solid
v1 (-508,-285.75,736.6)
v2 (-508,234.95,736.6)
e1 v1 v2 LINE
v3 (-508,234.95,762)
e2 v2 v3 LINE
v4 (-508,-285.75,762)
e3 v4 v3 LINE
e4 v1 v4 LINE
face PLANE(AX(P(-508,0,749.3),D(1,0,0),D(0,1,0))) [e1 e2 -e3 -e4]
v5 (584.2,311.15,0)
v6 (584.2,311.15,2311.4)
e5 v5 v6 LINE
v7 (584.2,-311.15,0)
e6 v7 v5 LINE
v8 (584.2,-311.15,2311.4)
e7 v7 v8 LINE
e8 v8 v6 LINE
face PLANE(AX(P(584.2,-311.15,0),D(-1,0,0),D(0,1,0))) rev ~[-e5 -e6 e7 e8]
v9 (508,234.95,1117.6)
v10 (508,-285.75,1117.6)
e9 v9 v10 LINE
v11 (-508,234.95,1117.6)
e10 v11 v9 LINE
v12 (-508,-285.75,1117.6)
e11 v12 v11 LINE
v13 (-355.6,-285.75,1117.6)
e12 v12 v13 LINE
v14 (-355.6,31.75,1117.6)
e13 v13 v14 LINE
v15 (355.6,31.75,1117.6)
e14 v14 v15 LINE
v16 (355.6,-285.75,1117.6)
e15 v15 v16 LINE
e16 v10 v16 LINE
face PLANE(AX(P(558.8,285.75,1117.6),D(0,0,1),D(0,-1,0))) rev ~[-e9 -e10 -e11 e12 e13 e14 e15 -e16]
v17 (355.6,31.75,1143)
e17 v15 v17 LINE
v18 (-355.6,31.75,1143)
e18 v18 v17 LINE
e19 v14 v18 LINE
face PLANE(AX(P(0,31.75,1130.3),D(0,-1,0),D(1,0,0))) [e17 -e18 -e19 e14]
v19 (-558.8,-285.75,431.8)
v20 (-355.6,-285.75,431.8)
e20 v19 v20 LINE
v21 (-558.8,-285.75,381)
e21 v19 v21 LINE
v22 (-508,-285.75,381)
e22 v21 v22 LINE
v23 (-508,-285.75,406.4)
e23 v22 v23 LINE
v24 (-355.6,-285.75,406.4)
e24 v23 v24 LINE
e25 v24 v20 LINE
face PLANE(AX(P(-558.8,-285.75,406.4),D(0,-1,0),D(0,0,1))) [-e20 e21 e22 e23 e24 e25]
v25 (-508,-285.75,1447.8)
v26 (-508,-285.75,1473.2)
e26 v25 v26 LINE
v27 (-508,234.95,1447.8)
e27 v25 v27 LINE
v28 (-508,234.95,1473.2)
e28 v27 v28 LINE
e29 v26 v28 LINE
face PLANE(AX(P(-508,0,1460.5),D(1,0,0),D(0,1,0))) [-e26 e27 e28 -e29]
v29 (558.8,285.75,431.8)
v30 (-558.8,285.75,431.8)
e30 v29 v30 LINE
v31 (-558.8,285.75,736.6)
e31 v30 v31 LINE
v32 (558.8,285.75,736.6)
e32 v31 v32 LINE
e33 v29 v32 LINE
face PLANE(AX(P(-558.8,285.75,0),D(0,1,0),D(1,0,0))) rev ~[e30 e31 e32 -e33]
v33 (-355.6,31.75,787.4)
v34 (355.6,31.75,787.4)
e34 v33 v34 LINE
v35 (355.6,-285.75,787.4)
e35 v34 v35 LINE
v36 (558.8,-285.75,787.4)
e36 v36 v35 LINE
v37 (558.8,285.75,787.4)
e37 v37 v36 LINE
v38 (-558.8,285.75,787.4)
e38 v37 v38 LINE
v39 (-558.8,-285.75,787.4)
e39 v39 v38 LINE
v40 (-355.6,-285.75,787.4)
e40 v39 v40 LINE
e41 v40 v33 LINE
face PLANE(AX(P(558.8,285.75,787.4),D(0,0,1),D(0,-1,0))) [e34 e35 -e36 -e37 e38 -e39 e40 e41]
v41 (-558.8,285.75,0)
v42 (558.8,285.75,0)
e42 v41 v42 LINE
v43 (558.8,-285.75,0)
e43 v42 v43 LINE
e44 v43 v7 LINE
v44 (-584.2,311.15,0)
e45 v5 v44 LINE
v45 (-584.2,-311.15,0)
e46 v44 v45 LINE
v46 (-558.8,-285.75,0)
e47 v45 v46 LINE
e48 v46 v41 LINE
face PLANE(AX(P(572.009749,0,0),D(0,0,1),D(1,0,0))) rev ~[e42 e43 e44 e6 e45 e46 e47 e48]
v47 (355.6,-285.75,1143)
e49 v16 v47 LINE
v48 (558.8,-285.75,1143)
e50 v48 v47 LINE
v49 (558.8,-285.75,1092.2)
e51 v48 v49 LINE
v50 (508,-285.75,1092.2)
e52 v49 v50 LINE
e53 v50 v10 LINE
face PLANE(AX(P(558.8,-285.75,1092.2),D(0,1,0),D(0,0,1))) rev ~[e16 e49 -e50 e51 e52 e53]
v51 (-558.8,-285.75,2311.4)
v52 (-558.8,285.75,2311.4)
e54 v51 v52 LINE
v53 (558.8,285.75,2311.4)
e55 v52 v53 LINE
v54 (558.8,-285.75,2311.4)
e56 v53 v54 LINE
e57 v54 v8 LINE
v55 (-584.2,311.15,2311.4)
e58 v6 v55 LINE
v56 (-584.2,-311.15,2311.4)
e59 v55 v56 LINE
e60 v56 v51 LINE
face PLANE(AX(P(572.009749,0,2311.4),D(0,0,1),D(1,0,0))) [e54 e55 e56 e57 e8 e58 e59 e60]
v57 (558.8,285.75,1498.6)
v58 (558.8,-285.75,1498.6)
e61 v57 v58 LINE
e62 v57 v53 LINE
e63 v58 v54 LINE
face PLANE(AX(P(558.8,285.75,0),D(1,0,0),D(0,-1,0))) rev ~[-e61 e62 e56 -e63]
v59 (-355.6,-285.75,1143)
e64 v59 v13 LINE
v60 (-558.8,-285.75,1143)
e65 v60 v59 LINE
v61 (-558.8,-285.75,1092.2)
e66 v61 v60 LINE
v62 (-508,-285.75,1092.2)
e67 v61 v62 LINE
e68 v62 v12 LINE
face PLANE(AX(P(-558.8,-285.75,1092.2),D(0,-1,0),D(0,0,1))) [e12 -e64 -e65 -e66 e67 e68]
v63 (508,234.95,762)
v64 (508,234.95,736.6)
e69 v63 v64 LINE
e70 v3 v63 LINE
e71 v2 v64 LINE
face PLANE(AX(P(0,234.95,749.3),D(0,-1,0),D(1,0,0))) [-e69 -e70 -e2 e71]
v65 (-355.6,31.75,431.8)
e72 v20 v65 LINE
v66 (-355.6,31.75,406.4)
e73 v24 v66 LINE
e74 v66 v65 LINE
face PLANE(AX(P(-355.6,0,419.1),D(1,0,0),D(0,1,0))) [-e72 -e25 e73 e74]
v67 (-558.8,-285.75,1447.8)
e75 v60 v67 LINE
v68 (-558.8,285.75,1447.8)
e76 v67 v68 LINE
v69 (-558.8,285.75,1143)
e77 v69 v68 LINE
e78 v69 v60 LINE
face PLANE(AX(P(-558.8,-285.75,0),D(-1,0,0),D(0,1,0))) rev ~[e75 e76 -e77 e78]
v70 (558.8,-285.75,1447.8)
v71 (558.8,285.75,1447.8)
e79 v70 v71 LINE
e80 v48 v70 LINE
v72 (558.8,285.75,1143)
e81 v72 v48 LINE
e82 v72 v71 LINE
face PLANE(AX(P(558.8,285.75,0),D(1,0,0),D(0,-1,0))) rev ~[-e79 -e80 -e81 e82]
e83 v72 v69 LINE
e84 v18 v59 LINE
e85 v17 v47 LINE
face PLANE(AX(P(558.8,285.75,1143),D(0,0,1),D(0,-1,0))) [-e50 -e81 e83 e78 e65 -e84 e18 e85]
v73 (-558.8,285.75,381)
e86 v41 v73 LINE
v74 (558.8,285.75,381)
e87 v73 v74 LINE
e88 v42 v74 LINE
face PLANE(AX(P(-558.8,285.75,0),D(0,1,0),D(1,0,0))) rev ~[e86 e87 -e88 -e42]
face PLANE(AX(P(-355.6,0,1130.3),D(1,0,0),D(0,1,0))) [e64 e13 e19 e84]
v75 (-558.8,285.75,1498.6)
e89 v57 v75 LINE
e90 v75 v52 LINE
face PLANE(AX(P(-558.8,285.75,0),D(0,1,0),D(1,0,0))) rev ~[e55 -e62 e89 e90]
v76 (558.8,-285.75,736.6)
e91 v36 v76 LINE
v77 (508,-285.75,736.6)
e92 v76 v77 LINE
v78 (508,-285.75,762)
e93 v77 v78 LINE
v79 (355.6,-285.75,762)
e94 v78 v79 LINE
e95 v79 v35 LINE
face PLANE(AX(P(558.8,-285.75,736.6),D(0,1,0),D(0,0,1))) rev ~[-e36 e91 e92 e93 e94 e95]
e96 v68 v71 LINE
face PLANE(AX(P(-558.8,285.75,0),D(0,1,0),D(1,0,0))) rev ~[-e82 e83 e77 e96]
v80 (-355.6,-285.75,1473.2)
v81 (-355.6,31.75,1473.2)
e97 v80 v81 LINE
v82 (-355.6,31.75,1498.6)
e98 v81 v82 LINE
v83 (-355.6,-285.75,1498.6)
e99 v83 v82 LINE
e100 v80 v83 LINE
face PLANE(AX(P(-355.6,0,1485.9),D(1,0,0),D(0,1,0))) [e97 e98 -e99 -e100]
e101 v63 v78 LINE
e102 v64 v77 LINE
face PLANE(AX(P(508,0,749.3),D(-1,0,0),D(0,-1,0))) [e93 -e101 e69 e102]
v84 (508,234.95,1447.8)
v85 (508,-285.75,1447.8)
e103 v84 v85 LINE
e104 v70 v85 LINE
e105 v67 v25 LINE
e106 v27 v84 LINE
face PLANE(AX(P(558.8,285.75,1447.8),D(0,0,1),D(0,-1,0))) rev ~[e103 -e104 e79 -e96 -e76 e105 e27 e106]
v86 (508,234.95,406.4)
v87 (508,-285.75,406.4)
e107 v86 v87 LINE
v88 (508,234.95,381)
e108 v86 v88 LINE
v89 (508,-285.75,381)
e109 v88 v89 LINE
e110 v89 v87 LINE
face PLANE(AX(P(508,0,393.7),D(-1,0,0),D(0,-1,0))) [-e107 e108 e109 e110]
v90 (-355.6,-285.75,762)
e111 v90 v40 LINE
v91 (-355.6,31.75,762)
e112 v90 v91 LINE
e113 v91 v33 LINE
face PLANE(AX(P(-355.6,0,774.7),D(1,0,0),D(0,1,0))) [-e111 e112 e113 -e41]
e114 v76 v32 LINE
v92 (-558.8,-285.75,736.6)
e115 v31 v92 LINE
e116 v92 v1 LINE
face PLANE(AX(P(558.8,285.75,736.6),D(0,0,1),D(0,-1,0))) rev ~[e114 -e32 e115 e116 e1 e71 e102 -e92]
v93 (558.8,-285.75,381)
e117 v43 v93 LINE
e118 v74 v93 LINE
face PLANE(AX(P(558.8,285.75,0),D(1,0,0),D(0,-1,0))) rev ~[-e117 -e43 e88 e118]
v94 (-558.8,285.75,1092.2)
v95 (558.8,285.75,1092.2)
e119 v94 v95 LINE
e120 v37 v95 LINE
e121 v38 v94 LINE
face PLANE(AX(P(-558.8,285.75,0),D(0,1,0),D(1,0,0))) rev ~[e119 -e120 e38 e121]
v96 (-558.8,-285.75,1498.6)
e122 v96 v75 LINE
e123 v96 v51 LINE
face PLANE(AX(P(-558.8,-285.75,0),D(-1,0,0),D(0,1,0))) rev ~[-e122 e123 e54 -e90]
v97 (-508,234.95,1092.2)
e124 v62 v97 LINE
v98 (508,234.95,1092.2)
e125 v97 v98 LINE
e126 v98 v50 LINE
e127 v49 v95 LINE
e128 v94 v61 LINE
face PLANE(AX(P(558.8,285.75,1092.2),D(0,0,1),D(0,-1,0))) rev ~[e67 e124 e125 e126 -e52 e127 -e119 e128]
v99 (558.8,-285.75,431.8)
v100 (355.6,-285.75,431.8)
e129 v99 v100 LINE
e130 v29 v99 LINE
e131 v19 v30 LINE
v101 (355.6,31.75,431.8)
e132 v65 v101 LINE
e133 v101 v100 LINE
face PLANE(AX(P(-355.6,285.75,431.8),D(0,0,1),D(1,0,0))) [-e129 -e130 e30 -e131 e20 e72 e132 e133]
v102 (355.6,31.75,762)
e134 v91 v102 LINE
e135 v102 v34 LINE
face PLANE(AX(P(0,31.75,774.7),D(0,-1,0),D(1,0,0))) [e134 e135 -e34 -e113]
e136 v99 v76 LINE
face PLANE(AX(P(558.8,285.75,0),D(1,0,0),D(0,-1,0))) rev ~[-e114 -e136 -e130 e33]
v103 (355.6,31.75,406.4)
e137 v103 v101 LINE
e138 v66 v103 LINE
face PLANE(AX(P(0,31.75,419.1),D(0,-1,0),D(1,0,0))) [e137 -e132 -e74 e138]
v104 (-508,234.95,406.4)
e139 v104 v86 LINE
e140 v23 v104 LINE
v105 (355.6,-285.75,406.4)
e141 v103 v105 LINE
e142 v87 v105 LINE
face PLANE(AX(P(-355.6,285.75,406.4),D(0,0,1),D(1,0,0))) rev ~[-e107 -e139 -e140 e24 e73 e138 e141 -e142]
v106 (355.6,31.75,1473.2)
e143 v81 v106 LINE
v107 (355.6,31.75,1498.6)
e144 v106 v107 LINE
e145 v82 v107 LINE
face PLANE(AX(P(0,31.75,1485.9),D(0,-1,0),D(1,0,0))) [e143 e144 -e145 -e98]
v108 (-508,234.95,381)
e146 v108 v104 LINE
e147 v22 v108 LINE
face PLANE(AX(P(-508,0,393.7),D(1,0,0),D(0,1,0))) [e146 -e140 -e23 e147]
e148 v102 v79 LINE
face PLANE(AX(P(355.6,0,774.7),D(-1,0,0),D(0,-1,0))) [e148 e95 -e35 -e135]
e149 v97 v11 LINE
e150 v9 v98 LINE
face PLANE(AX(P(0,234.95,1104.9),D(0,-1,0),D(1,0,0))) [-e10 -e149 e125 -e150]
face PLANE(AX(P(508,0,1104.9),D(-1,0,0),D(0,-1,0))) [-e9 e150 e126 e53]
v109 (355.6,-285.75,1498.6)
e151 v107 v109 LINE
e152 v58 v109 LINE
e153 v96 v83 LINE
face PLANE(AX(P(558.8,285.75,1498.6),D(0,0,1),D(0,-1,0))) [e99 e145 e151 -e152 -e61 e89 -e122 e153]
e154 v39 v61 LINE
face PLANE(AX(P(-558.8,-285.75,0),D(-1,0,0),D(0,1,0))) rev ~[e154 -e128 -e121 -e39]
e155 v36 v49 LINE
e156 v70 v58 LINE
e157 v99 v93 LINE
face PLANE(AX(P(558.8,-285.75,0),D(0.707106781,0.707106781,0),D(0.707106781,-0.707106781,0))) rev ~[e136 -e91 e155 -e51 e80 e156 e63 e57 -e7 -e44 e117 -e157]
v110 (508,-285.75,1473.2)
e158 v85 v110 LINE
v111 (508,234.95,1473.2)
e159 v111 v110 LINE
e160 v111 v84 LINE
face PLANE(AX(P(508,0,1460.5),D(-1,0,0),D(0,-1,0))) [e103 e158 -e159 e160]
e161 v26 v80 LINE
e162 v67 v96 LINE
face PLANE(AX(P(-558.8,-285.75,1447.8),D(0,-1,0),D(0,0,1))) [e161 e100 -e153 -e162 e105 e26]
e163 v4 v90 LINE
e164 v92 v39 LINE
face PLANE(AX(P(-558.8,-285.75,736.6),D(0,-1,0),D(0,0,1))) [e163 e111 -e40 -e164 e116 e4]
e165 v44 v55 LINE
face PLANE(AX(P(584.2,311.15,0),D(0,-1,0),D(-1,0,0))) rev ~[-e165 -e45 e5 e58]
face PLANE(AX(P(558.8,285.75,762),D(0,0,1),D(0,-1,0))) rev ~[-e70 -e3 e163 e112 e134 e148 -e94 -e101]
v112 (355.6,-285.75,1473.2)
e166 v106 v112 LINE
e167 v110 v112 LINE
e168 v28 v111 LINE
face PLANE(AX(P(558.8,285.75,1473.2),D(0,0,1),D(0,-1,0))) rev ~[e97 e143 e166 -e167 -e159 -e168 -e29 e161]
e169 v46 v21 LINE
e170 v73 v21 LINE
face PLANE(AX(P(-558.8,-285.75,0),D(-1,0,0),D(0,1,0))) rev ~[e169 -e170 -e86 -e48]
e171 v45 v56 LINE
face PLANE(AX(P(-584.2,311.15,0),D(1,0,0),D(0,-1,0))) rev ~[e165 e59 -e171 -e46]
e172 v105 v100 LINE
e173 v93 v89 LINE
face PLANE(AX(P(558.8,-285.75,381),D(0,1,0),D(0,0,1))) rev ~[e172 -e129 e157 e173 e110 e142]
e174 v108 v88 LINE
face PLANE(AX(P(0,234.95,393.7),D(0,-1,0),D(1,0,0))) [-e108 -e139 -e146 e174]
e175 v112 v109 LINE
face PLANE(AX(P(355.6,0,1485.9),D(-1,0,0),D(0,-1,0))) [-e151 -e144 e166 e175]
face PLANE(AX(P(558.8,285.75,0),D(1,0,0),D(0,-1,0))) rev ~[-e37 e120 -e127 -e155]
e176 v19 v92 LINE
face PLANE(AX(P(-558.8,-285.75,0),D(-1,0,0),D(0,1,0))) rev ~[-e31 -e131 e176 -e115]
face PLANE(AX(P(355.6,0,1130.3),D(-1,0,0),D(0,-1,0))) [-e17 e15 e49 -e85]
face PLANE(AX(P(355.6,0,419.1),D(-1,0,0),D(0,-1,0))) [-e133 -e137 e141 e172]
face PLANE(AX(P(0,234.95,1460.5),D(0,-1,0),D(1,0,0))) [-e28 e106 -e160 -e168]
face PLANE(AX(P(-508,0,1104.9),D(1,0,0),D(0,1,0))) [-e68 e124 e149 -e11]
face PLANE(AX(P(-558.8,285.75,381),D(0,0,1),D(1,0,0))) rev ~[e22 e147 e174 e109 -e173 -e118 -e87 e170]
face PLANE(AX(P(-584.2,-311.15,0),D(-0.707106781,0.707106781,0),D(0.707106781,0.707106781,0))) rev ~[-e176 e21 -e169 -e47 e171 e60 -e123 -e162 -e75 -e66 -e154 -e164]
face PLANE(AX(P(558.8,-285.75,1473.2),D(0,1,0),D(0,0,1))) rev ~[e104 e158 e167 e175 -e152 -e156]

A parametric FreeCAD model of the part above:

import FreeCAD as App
import Part
import Sketcher

V = App.Vector
Q = App.Units.Quantity

doc = App.newDocument("Part")
params = doc.addObject("Spreadsheet::Sheet", "Params")
for row, (alias, value) in enumerate([
    ("sketch1_width", "44 in"),
    ("sketch1_width2", "46 in"),
    ("pad1_length", "91 in"),
    ("sketch2_height", "22.5 in"),
    ("sketch2_height2", "24.5 in"),
    ("pad2_length", "91 in"),
    ("sketch3_height", "22.5 in"),
    ("sketch3_height2", "24.5 in"),
    ("pad3_length", "91 in"),
    ("sketch4_width", "44 in"),
    ("sketch4_height", "1 in"),
    ("pad4_length", "2 in"),
    ("sketch5_height", "1 in"),
    ("sketch5_width", "22.5 in"),
    ("pad5_length", "2 in"),
    ("sketch6_height", "1 in"),
    ("sketch6_width", "22.5 in"),
    ("pad6_length", "2 in"),
    ("sketch7_height", "1 in"),
    ("sketch7_width", "22.5 in"),
    ("pad7_length", "8 in"),
    ("sketch8_height", "1 in"),
    ("sketch8_width", "22.5 in"),
    ("pad8_length", "8 in"),
    ("sketch9_width", "28 in"),
    ("sketch9_height", "1 in"),
    ("pad9_length", "10 in"),
], start=1):
    params.set(f"A{row}", alias)
    params.set(f"B{row}", "=" + value)
    params.setAlias(f"B{row}", alias)

body = doc.addObject("PartDesign::Body", "Body")

# Sketch on XY plane
sketch1 = doc.addObject("Sketcher::SketchObject", "Sketch")
body.addObject(sketch1)
sketch1.AttachmentSupport = (doc.XY_Plane, [""])
sketch1.MapMode = "FlatFace"
sketch1.addGeometry(Part.LineSegment(V(-559, 286, 0), V(559, 286, 0)), False)
sketch1.addGeometry(Part.LineSegment(V(559, 286, 0), V(584, 311, 0)), False)
sketch1.addGeometry(Part.LineSegment(V(584, 311, 0), V(-584, 311, 0)), False)
sketch1.addGeometry(Part.LineSegment(V(-584, 311, 0), V(-559, 286, 0)), False)
sketch1.addConstraint(Sketcher.Constraint("Coincident", 0, 2, 1, 1))
sketch1.addConstraint(Sketcher.Constraint("Coincident", 1, 2, 2, 1))
sketch1.addConstraint(Sketcher.Constraint("Coincident", 2, 2, 3, 1))
sketch1.addConstraint(Sketcher.Constraint("Coincident", 3, 2, 0, 1))
sketch1.addConstraint(Sketcher.Constraint("Horizontal", 0))
sketch1.addConstraint(Sketcher.Constraint("Horizontal", 2))
sketch1.addConstraint(Sketcher.Constraint("Perpendicular", 1, 3))
sketch1.addConstraint(Sketcher.Constraint("Equal", 1, 3))
sketch1.addConstraint(Sketcher.Constraint("DistanceX", 0, 1, 0, 2, Q("44 in")))
sketch1.addConstraint(Sketcher.Constraint("DistanceX", 2, 2, 2, 1, Q("46 in")))
sketch1.addConstraint(Sketcher.Constraint("DistanceX", -1, 1, 0, 2, Q("22 in")))
sketch1.addConstraint(Sketcher.Constraint("DistanceY", -1, 1, 0, 2, Q("11.25 in")))
sketch1.setExpression("Constraints[8]", "Params.sketch1_width")
sketch1.setExpression("Constraints[9]", "Params.sketch1_width2")
pad1 = doc.addObject("PartDesign::Pad", "Pad")
body.addObject(pad1)
pad1.Profile = sketch1
pad1.setExpression("Length", "Params.pad1_length")

# Sketch on XY plane
sketch2 = doc.addObject("Sketcher::SketchObject", "Sketch001")
body.addObject(sketch2)
sketch2.AttachmentSupport = (doc.XY_Plane, [""])
sketch2.MapMode = "FlatFace"
sketch2.addGeometry(Part.LineSegment(V(-559, -286, 0), V(-559, 286, 0)), False)
sketch2.addGeometry(Part.LineSegment(V(-559, 286, 0), V(-584, 311, 0)), False)
sketch2.addGeometry(Part.LineSegment(V(-584, 311, 0), V(-584, -311, 0)), False)
sketch2.addGeometry(Part.LineSegment(V(-584, -311, 0), V(-559, -286, 0)), False)
sketch2.addConstraint(Sketcher.Constraint("Coincident", 0, 2, 1, 1))
sketch2.addConstraint(Sketcher.Constraint("Coincident", 1, 2, 2, 1))
sketch2.addConstraint(Sketcher.Constraint("Coincident", 2, 2, 3, 1))
sketch2.addConstraint(Sketcher.Constraint("Coincident", 3, 2, 0, 1))
sketch2.addConstraint(Sketcher.Constraint("Vertical", 0))
sketch2.addConstraint(Sketcher.Constraint("Vertical", 2))
sketch2.addConstraint(Sketcher.Constraint("Perpendicular", 1, 3))
sketch2.addConstraint(Sketcher.Constraint("Equal", 1, 3))
sketch2.addConstraint(Sketcher.Constraint("DistanceY", 0, 1, 0, 2, Q("22.5 in")))
sketch2.addConstraint(Sketcher.Constraint("DistanceY", 2, 2, 2, 1, Q("24.5 in")))
sketch2.addConstraint(Sketcher.Constraint("DistanceX", 0, 2, -1, 1, Q("22 in")))
sketch2.addConstraint(Sketcher.Constraint("DistanceY", -1, 1, 0, 2, Q("11.25 in")))
sketch2.setExpression("Constraints[8]", "Params.sketch2_height")
sketch2.setExpression("Constraints[9]", "Params.sketch2_height2")
pad2 = doc.addObject("PartDesign::Pad", "Pad001")
body.addObject(pad2)
pad2.Profile = sketch2
pad2.setExpression("Length", "Params.pad2_length")

# Sketch on XY plane
sketch3 = doc.addObject("Sketcher::SketchObject", "Sketch002")
body.addObject(sketch3)
sketch3.AttachmentSupport = (doc.XY_Plane, [""])
sketch3.MapMode = "FlatFace"
sketch3.addGeometry(Part.LineSegment(V(559, 286, 0), V(559, -286, 0)), False)
sketch3.addGeometry(Part.LineSegment(V(559, -286, 0), V(584, -311, 0)), False)
sketch3.addGeometry(Part.LineSegment(V(584, -311, 0), V(584, 311, 0)), False)
sketch3.addGeometry(Part.LineSegment(V(584, 311, 0), V(559, 286, 0)), False)
sketch3.addConstraint(Sketcher.Constraint("Coincident", 0, 2, 1, 1))
sketch3.addConstraint(Sketcher.Constraint("Coincident", 1, 2, 2, 1))
sketch3.addConstraint(Sketcher.Constraint("Coincident", 2, 2, 3, 1))
sketch3.addConstraint(Sketcher.Constraint("Coincident", 3, 2, 0, 1))
sketch3.addConstraint(Sketcher.Constraint("Vertical", 0))
sketch3.addConstraint(Sketcher.Constraint("Vertical", 2))
sketch3.addConstraint(Sketcher.Constraint("Perpendicular", 1, 3))
sketch3.addConstraint(Sketcher.Constraint("Equal", 1, 3))
sketch3.addConstraint(Sketcher.Constraint("DistanceY", 0, 2, 0, 1, Q("22.5 in")))
sketch3.addConstraint(Sketcher.Constraint("DistanceY", 2, 1, 2, 2, Q("24.5 in")))
sketch3.addConstraint(Sketcher.Constraint("DistanceX", -1, 1, 0, 2, Q("22 in")))
sketch3.addConstraint(Sketcher.Constraint("DistanceY", 0, 2, -1, 1, Q("11.25 in")))
sketch3.setExpression("Constraints[8]", "Params.sketch3_height")
sketch3.setExpression("Constraints[9]", "Params.sketch3_height2")
pad3 = doc.addObject("PartDesign::Pad", "Pad002")
body.addObject(pad3)
pad3.Profile = sketch3
pad3.setExpression("Length", "Params.pad3_length")

# Sketch on XZ plane
sketch4 = doc.addObject("Sketcher::SketchObject", "Sketch003")
body.addObject(sketch4)
sketch4.AttachmentSupport = (doc.XZ_Plane, [""])
sketch4.MapMode = "FlatFace"
sketch4.AttachmentOffset = App.Placement(V(0, 0, -11.25 * 25.4), App.Rotation())
sketch4.addGeometry(Part.LineSegment(V(-559, 406, 0), V(-559, 381, 0)), False)
sketch4.addGeometry(Part.LineSegment(V(-559, 381, 0), V(559, 381, 0)), False)
sketch4.addGeometry(Part.LineSegment(V(559, 381, 0), V(559, 406, 0)), False)
sketch4.addGeometry(Part.LineSegment(V(559, 406, 0), V(-559, 406, 0)), False)
sketch4.addGeometry(Part.LineSegment(V(-559, 762, 0), V(-559, 737, 0)), False)
sketch4.addGeometry(Part.LineSegment(V(-559, 737, 0), V(559, 737, 0)), False)
sketch4.addGeometry(Part.LineSegment(V(559, 737, 0), V(559, 762, 0)), False)
sketch4.addGeometry(Part.LineSegment(V(559, 762, 0), V(-559, 762, 0)), False)
sketch4.addGeometry(Part.LineSegment(V(-559, 1118, 0), V(-559, 1092, 0)), False)
sketch4.addGeometry(Part.LineSegment(V(-559, 1092, 0), V(559, 1092, 0)), False)
sketch4.addGeometry(Part.LineSegment(V(559, 1092, 0), V(559, 1118, 0)), False)
sketch4.addGeometry(Part.LineSegment(V(559, 1118, 0), V(-559, 1118, 0)), False)
sketch4.addGeometry(Part.LineSegment(V(-559, 1473, 0), V(-559, 1448, 0)), False)
sketch4.addGeometry(Part.LineSegment(V(-559, 1448, 0), V(559, 1448, 0)), False)
sketch4.addGeometry(Part.LineSegment(V(559, 1448, 0), V(559, 1473, 0)), False)
sketch4.addGeometry(Part.LineSegment(V(559, 1473, 0), V(-559, 1473, 0)), False)
sketch4.addConstraint(Sketcher.Constraint("Coincident", 0, 2, 1, 1))
sketch4.addConstraint(Sketcher.Constraint("Coincident", 1, 2, 2, 1))
sketch4.addConstraint(Sketcher.Constraint("Coincident", 2, 2, 3, 1))
sketch4.addConstraint(Sketcher.Constraint("Coincident", 3, 2, 0, 1))
sketch4.addConstraint(Sketcher.Constraint("Coincident", 4, 2, 5, 1))
sketch4.addConstraint(Sketcher.Constraint("Coincident", 5, 2, 6, 1))
sketch4.addConstraint(Sketcher.Constraint("Coincident", 6, 2, 7, 1))
sketch4.addConstraint(Sketcher.Constraint("Coincident", 7, 2, 4, 1))
sketch4.addConstraint(Sketcher.Constraint("Coincident", 8, 2, 9, 1))
sketch4.addConstraint(Sketcher.Constraint("Coincident", 9, 2, 10, 1))
sketch4.addConstraint(Sketcher.Constraint("Coincident", 10, 2, 11, 1))
sketch4.addConstraint(Sketcher.Constraint("Coincident", 11, 2, 8, 1))
sketch4.addConstraint(Sketcher.Constraint("Coincident", 12, 2, 13, 1))
sketch4.addConstraint(Sketcher.Constraint("Coincident", 13, 2, 14, 1))
sketch4.addConstraint(Sketcher.Constraint("Coincident", 14, 2, 15, 1))
sketch4.addConstraint(Sketcher.Constraint("Coincident", 15, 2, 12, 1))
sketch4.addConstraint(Sketcher.Constraint("Vertical", 0))
sketch4.addConstraint(Sketcher.Constraint("Horizontal", 1))
sketch4.addConstraint(Sketcher.Constraint("Vertical", 2))
sketch4.addConstraint(Sketcher.Constraint("Horizontal", 3))
sketch4.addConstraint(Sketcher.Constraint("Vertical", 4))
sketch4.addConstraint(Sketcher.Constraint("Horizontal", 5))
sketch4.addConstraint(Sketcher.Constraint("Vertical", 6))
sketch4.addConstraint(Sketcher.Constraint("Horizontal", 7))
sketch4.addConstraint(Sketcher.Constraint("Vertical", 8))
sketch4.addConstraint(Sketcher.Constraint("Horizontal", 9))
sketch4.addConstraint(Sketcher.Constraint("Vertical", 10))
sketch4.addConstraint(Sketcher.Constraint("Horizontal", 11))
sketch4.addConstraint(Sketcher.Constraint("Vertical", 12))
sketch4.addConstraint(Sketcher.Constraint("Horizontal", 13))
sketch4.addConstraint(Sketcher.Constraint("Vertical", 14))
sketch4.addConstraint(Sketcher.Constraint("Horizontal", 15))
sketch4.addConstraint(Sketcher.Constraint("Vertical", 3, 2, 4, 2))
sketch4.addConstraint(Sketcher.Constraint("Vertical", 2, 2, 5, 2))
sketch4.addConstraint(Sketcher.Constraint("Vertical", 7, 2, 8, 2))
sketch4.addConstraint(Sketcher.Constraint("Vertical", 6, 2, 9, 2))
sketch4.addConstraint(Sketcher.Constraint("Vertical", 11, 2, 12, 2))
sketch4.addConstraint(Sketcher.Constraint("Vertical", 10, 2, 13, 2))
sketch4.addConstraint(Sketcher.Constraint("Equal", 2, 4))
sketch4.addConstraint(Sketcher.Constraint("Equal", 6, 8))
sketch4.addConstraint(Sketcher.Constraint("Equal", 10, 12))
sketch4.addConstraint(Sketcher.Constraint("DistanceX", 1, 1, 1, 2, Q("44 in")))
sketch4.addConstraint(Sketcher.Constraint("DistanceY", 0, 2, 0, 1, Q("1 in")))
sketch4.addConstraint(Sketcher.Constraint("DistanceX", 0, 2, -1, 1, Q("22 in")))
sketch4.addConstraint(Sketcher.Constraint("DistanceY", -1, 1, 0, 2, Q("15 in")))
sketch4.addConstraint(Sketcher.Constraint("DistanceY", -1, 1, 4, 2, Q("29 in")))
sketch4.addConstraint(Sketcher.Constraint("DistanceY", -1, 1, 8, 2, Q("43 in")))
sketch4.addConstraint(Sketcher.Constraint("DistanceY", -1, 1, 12, 2, Q("57 in")))
sketch4.setExpression("Constraints[41]", "Params.sketch4_width")
sketch4.setExpression("Constraints[42]", "Params.sketch4_height")
pad4 = doc.addObject("PartDesign::Pad", "Pad003")
body.addObject(pad4)
pad4.Profile = sketch4
pad4.setExpression("Length", "Params.pad4_length")

# Sketch on YZ plane
sketch5 = doc.addObject("Sketcher::SketchObject", "Sketch004")
body.addObject(sketch5)
sketch5.AttachmentSupport = (doc.YZ_Plane, [""])
sketch5.MapMode = "FlatFace"
sketch5.AttachmentOffset = App.Placement(V(0, 0, -22 * 25.4), App.Rotation())
sketch5.addGeometry(Part.LineSegment(V(-286, 1473, 0), V(-286, 1448, 0)), False)
sketch5.addGeometry(Part.LineSegment(V(-286, 1448, 0), V(286, 1448, 0)), False)
sketch5.addGeometry(Part.LineSegment(V(286, 1448, 0), V(286, 1473, 0)), False)
sketch5.addGeometry(Part.LineSegment(V(286, 1473, 0), V(-286, 1473, 0)), False)
sketch5.addGeometry(Part.LineSegment(V(-286, 1118, 0), V(-286, 1092, 0)), False)
sketch5.addGeometry(Part.LineSegment(V(-286, 1092, 0), V(286, 1092, 0)), False)
sketch5.addGeometry(Part.LineSegment(V(286, 1092, 0), V(286, 1118, 0)), False)
sketch5.addGeometry(Part.LineSegment(V(286, 1118, 0), V(-286, 1118, 0)), False)
sketch5.addGeometry(Part.LineSegment(V(-286, 762, 0), V(-286, 737, 0)), False)
sketch5.addGeometry(Part.LineSegment(V(-286, 737, 0), V(286, 737, 0)), False)
sketch5.addGeometry(Part.LineSegment(V(286, 737, 0), V(286, 762, 0)), False)
sketch5.addGeometry(Part.LineSegment(V(286, 762, 0), V(-286, 762, 0)), False)
sketch5.addGeometry(Part.LineSegment(V(-286, 406, 0), V(-286, 381, 0)), False)
sketch5.addGeometry(Part.LineSegment(V(-286, 381, 0), V(286, 381, 0)), False)
sketch5.addGeometry(Part.LineSegment(V(286, 381, 0), V(286, 406, 0)), False)
sketch5.addGeometry(Part.LineSegment(V(286, 406, 0), V(-286, 406, 0)), False)
sketch5.addConstraint(Sketcher.Constraint("Coincident", 0, 2, 1, 1))
sketch5.addConstraint(Sketcher.Constraint("Coincident", 1, 2, 2, 1))
sketch5.addConstraint(Sketcher.Constraint("Coincident", 2, 2, 3, 1))
sketch5.addConstraint(Sketcher.Constraint("Coincident", 3, 2, 0, 1))
sketch5.addConstraint(Sketcher.Constraint("Coincident", 4, 2, 5, 1))
sketch5.addConstraint(Sketcher.Constraint("Coincident", 5, 2, 6, 1))
sketch5.addConstraint(Sketcher.Constraint("Coincident", 6, 2, 7, 1))
sketch5.addConstraint(Sketcher.Constraint("Coincident", 7, 2, 4, 1))
sketch5.addConstraint(Sketcher.Constraint("Coincident", 8, 2, 9, 1))
sketch5.addConstraint(Sketcher.Constraint("Coincident", 9, 2, 10, 1))
sketch5.addConstraint(Sketcher.Constraint("Coincident", 10, 2, 11, 1))
sketch5.addConstraint(Sketcher.Constraint("Coincident", 11, 2, 8, 1))
sketch5.addConstraint(Sketcher.Constraint("Coincident", 12, 2, 13, 1))
sketch5.addConstraint(Sketcher.Constraint("Coincident", 13, 2, 14, 1))
sketch5.addConstraint(Sketcher.Constraint("Coincident", 14, 2, 15, 1))
sketch5.addConstraint(Sketcher.Constraint("Coincident", 15, 2, 12, 1))
sketch5.addConstraint(Sketcher.Constraint("Vertical", 0))
sketch5.addConstraint(Sketcher.Constraint("Horizontal", 1))
sketch5.addConstraint(Sketcher.Constraint("Vertical", 2))
sketch5.addConstraint(Sketcher.Constraint("Horizontal", 3))
sketch5.addConstraint(Sketcher.Constraint("Vertical", 4))
sketch5.addConstraint(Sketcher.Constraint("Horizontal", 5))
sketch5.addConstraint(Sketcher.Constraint("Vertical", 6))
sketch5.addConstraint(Sketcher.Constraint("Horizontal", 7))
sketch5.addConstraint(Sketcher.Constraint("Vertical", 8))
sketch5.addConstraint(Sketcher.Constraint("Horizontal", 9))
sketch5.addConstraint(Sketcher.Constraint("Vertical", 10))
sketch5.addConstraint(Sketcher.Constraint("Horizontal", 11))
sketch5.addConstraint(Sketcher.Constraint("Vertical", 12))
sketch5.addConstraint(Sketcher.Constraint("Horizontal", 13))
sketch5.addConstraint(Sketcher.Constraint("Vertical", 14))
sketch5.addConstraint(Sketcher.Constraint("Horizontal", 15))
sketch5.addConstraint(Sketcher.Constraint("Vertical", 3, 2, 4, 2))
sketch5.addConstraint(Sketcher.Constraint("Vertical", 2, 2, 5, 2))
sketch5.addConstraint(Sketcher.Constraint("Vertical", 7, 2, 8, 2))
sketch5.addConstraint(Sketcher.Constraint("Vertical", 6, 2, 9, 2))
sketch5.addConstraint(Sketcher.Constraint("Vertical", 11, 2, 12, 2))
sketch5.addConstraint(Sketcher.Constraint("Vertical", 10, 2, 13, 2))
sketch5.addConstraint(Sketcher.Constraint("Equal", 2, 4))
sketch5.addConstraint(Sketcher.Constraint("Equal", 6, 8))
sketch5.addConstraint(Sketcher.Constraint("Equal", 10, 12))
sketch5.addConstraint(Sketcher.Constraint("DistanceY", 0, 2, 0, 1, Q("1 in")))
sketch5.addConstraint(Sketcher.Constraint("DistanceX", 1, 1, 1, 2, Q("22.5 in")))
sketch5.addConstraint(Sketcher.Constraint("DistanceY", -1, 1, 0, 2, Q("57 in")))
sketch5.addConstraint(Sketcher.Constraint("DistanceY", -1, 1, 4, 2, Q("43 in")))
sketch5.addConstraint(Sketcher.Constraint("DistanceY", -1, 1, 8, 2, Q("29 in")))
sketch5.addConstraint(Sketcher.Constraint("DistanceY", -1, 1, 12, 2, Q("15 in")))
sketch5.addConstraint(Sketcher.Constraint("DistanceX", 0, 2, -1, 1, Q("11.25 in")))
sketch5.setExpression("Constraints[41]", "Params.sketch5_height")
sketch5.setExpression("Constraints[42]", "Params.sketch5_width")
pad5 = doc.addObject("PartDesign::Pad", "Pad004")
body.addObject(pad5)
pad5.Profile = sketch5
pad5.setExpression("Length", "Params.pad5_length")

# Sketch on YZ plane
sketch6 = doc.addObject("Sketcher::SketchObject", "Sketch005")
body.addObject(sketch6)
sketch6.AttachmentSupport = (doc.YZ_Plane, [""])
sketch6.MapMode = "FlatFace"
sketch6.AttachmentOffset = App.Placement(V(0, 0, 22 * 25.4), App.Rotation())
sketch6.addGeometry(Part.LineSegment(V(286, 406, 0), V(286, 381, 0)), False)
sketch6.addGeometry(Part.LineSegment(V(286, 381, 0), V(-286, 381, 0)), False)
sketch6.addGeometry(Part.LineSegment(V(-286, 381, 0), V(-286, 406, 0)), False)
sketch6.addGeometry(Part.LineSegment(V(-286, 406, 0), V(286, 406, 0)), False)
sketch6.addGeometry(Part.LineSegment(V(286, 762, 0), V(286, 737, 0)), False)
sketch6.addGeometry(Part.LineSegment(V(286, 737, 0), V(-286, 737, 0)), False)
sketch6.addGeometry(Part.LineSegment(V(-286, 737, 0), V(-286, 762, 0)), False)
sketch6.addGeometry(Part.LineSegment(V(-286, 762, 0), V(286, 762, 0)), False)
sketch6.addGeometry(Part.LineSegment(V(286, 1118, 0), V(286, 1092, 0)), False)
sketch6.addGeometry(Part.LineSegment(V(286, 1092, 0), V(-286, 1092, 0)), False)
sketch6.addGeometry(Part.LineSegment(V(-286, 1092, 0), V(-286, 1118, 0)), False)
sketch6.addGeometry(Part.LineSegment(V(-286, 1118, 0), V(286, 1118, 0)), False)
sketch6.addGeometry(Part.LineSegment(V(286, 1473, 0), V(286, 1448, 0)), False)
sketch6.addGeometry(Part.LineSegment(V(286, 1448, 0), V(-286, 1448, 0)), False)
sketch6.addGeometry(Part.LineSegment(V(-286, 1448, 0), V(-286, 1473, 0)), False)
sketch6.addGeometry(Part.LineSegment(V(-286, 1473, 0), V(286, 1473, 0)), False)
sketch6.addConstraint(Sketcher.Constraint("Coincident", 0, 2, 1, 1))
sketch6.addConstraint(Sketcher.Constraint("Coincident", 1, 2, 2, 1))
sketch6.addConstraint(Sketcher.Constraint("Coincident", 2, 2, 3, 1))
sketch6.addConstraint(Sketcher.Constraint("Coincident", 3, 2, 0, 1))
sketch6.addConstraint(Sketcher.Constraint("Coincident", 4, 2, 5, 1))
sketch6.addConstraint(Sketcher.Constraint("Coincident", 5, 2, 6, 1))
sketch6.addConstraint(Sketcher.Constraint("Coincident", 6, 2, 7, 1))
sketch6.addConstraint(Sketcher.Constraint("Coincident", 7, 2, 4, 1))
sketch6.addConstraint(Sketcher.Constraint("Coincident", 8, 2, 9, 1))
sketch6.addConstraint(Sketcher.Constraint("Coincident", 9, 2, 10, 1))
sketch6.addConstraint(Sketcher.Constraint("Coincident", 10, 2, 11, 1))
sketch6.addConstraint(Sketcher.Constraint("Coincident", 11, 2, 8, 1))
sketch6.addConstraint(Sketcher.Constraint("Coincident", 12, 2, 13, 1))
sketch6.addConstraint(Sketcher.Constraint("Coincident", 13, 2, 14, 1))
sketch6.addConstraint(Sketcher.Constraint("Coincident", 14, 2, 15, 1))
sketch6.addConstraint(Sketcher.Constraint("Coincident", 15, 2, 12, 1))
sketch6.addConstraint(Sketcher.Constraint("Vertical", 0))
sketch6.addConstraint(Sketcher.Constraint("Horizontal", 1))
sketch6.addConstraint(Sketcher.Constraint("Vertical", 2))
sketch6.addConstraint(Sketcher.Constraint("Horizontal", 3))
sketch6.addConstraint(Sketcher.Constraint("Vertical", 4))
sketch6.addConstraint(Sketcher.Constraint("Horizontal", 5))
sketch6.addConstraint(Sketcher.Constraint("Vertical", 6))
sketch6.addConstraint(Sketcher.Constraint("Horizontal", 7))
sketch6.addConstraint(Sketcher.Constraint("Vertical", 8))
sketch6.addConstraint(Sketcher.Constraint("Horizontal", 9))
sketch6.addConstraint(Sketcher.Constraint("Vertical", 10))
sketch6.addConstraint(Sketcher.Constraint("Horizontal", 11))
sketch6.addConstraint(Sketcher.Constraint("Vertical", 12))
sketch6.addConstraint(Sketcher.Constraint("Horizontal", 13))
sketch6.addConstraint(Sketcher.Constraint("Vertical", 14))
sketch6.addConstraint(Sketcher.Constraint("Horizontal", 15))
sketch6.addConstraint(Sketcher.Constraint("Vertical", 3, 2, 4, 2))
sketch6.addConstraint(Sketcher.Constraint("Vertical", 2, 2, 5, 2))
sketch6.addConstraint(Sketcher.Constraint("Vertical", 7, 2, 8, 2))
sketch6.addConstraint(Sketcher.Constraint("Vertical", 6, 2, 9, 2))
sketch6.addConstraint(Sketcher.Constraint("Vertical", 11, 2, 12, 2))
sketch6.addConstraint(Sketcher.Constraint("Vertical", 10, 2, 13, 2))
sketch6.addConstraint(Sketcher.Constraint("Equal", 2, 4))
sketch6.addConstraint(Sketcher.Constraint("Equal", 6, 8))
sketch6.addConstraint(Sketcher.Constraint("Equal", 10, 12))
sketch6.addConstraint(Sketcher.Constraint("DistanceY", 0, 2, 0, 1, Q("1 in")))
sketch6.addConstraint(Sketcher.Constraint("DistanceX", 1, 2, 1, 1, Q("22.5 in")))
sketch6.addConstraint(Sketcher.Constraint("DistanceY", -1, 1, 0, 2, Q("15 in")))
sketch6.addConstraint(Sketcher.Constraint("DistanceY", -1, 1, 4, 2, Q("29 in")))
sketch6.addConstraint(Sketcher.Constraint("DistanceY", -1, 1, 8, 2, Q("43 in")))
sketch6.addConstraint(Sketcher.Constraint("DistanceY", -1, 1, 12, 2, Q("57 in")))
sketch6.addConstraint(Sketcher.Constraint("DistanceX", -1, 1, 0, 2, Q("11.25 in")))
sketch6.setExpression("Constraints[41]", "Params.sketch6_height")
sketch6.setExpression("Constraints[42]", "Params.sketch6_width")
pad6 = doc.addObject("PartDesign::Pad", "Pad005")
body.addObject(pad6)
pad6.Profile = sketch6
pad6.setExpression("Length", "Params.pad6_length")
pad6.Reversed = True

# Sketch on YZ plane
sketch7 = doc.addObject("Sketcher::SketchObject", "Sketch006")
body.addObject(sketch7)
sketch7.AttachmentSupport = (doc.YZ_Plane, [""])
sketch7.MapMode = "FlatFace"
sketch7.AttachmentOffset = App.Placement(V(0, 0, -22 * 25.4), App.Rotation())
sketch7.addGeometry(Part.LineSegment(V(-286, 432, 0), V(-286, 406, 0)), False)
sketch7.addGeometry(Part.LineSegment(V(-286, 406, 0), V(286, 406, 0)), False)
sketch7.addGeometry(Part.LineSegment(V(286, 406, 0), V(286, 432, 0)), False)
sketch7.addGeometry(Part.LineSegment(V(286, 432, 0), V(-286, 432, 0)), False)
sketch7.addGeometry(Part.LineSegment(V(-286, 787, 0), V(-286, 762, 0)), False)
sketch7.addGeometry(Part.LineSegment(V(-286, 762, 0), V(286, 762, 0)), False)
sketch7.addGeometry(Part.LineSegment(V(286, 762, 0), V(286, 787, 0)), False)
sketch7.addGeometry(Part.LineSegment(V(286, 787, 0), V(-286, 787, 0)), False)
sketch7.addGeometry(Part.LineSegment(V(286, 1118, 0), V(286, 1143, 0)), False)
sketch7.addGeometry(Part.LineSegment(V(286, 1143, 0), V(-286, 1143, 0)), False)
sketch7.addGeometry(Part.LineSegment(V(-286, 1143, 0), V(-286, 1118, 0)), False)
sketch7.addGeometry(Part.LineSegment(V(-286, 1118, 0), V(286, 1118, 0)), False)
sketch7.addGeometry(Part.LineSegment(V(-286, 1499, 0), V(-286, 1473, 0)), False)
sketch7.addGeometry(Part.LineSegment(V(-286, 1473, 0), V(286, 1473, 0)), False)
sketch7.addGeometry(Part.LineSegment(V(286, 1473, 0), V(286, 1499, 0)), False)
sketch7.addGeometry(Part.LineSegment(V(286, 1499, 0), V(-286, 1499, 0)), False)
sketch7.addConstraint(Sketcher.Constraint("Coincident", 0, 2, 1, 1))
sketch7.addConstraint(Sketcher.Constraint("Coincident", 1, 2, 2, 1))
sketch7.addConstraint(Sketcher.Constraint("Coincident", 2, 2, 3, 1))
sketch7.addConstraint(Sketcher.Constraint("Coincident", 3, 2, 0, 1))
sketch7.addConstraint(Sketcher.Constraint("Coincident", 4, 2, 5, 1))
sketch7.addConstraint(Sketcher.Constraint("Coincident", 5, 2, 6, 1))
sketch7.addConstraint(Sketcher.Constraint("Coincident", 6, 2, 7, 1))
sketch7.addConstraint(Sketcher.Constraint("Coincident", 7, 2, 4, 1))
sketch7.addConstraint(Sketcher.Constraint("Coincident", 8, 2, 9, 1))
sketch7.addConstraint(Sketcher.Constraint("Coincident", 9, 2, 10, 1))
sketch7.addConstraint(Sketcher.Constraint("Coincident", 10, 2, 11, 1))
sketch7.addConstraint(Sketcher.Constraint("Coincident", 11, 2, 8, 1))
sketch7.addConstraint(Sketcher.Constraint("Coincident", 12, 2, 13, 1))
sketch7.addConstraint(Sketcher.Constraint("Coincident", 13, 2, 14, 1))
sketch7.addConstraint(Sketcher.Constraint("Coincident", 14, 2, 15, 1))
sketch7.addConstraint(Sketcher.Constraint("Coincident", 15, 2, 12, 1))
sketch7.addConstraint(Sketcher.Constraint("Vertical", 0))
sketch7.addConstraint(Sketcher.Constraint("Horizontal", 1))
sketch7.addConstraint(Sketcher.Constraint("Vertical", 2))
sketch7.addConstraint(Sketcher.Constraint("Horizontal", 3))
sketch7.addConstraint(Sketcher.Constraint("Vertical", 4))
sketch7.addConstraint(Sketcher.Constraint("Horizontal", 5))
sketch7.addConstraint(Sketcher.Constraint("Vertical", 6))
sketch7.addConstraint(Sketcher.Constraint("Horizontal", 7))
sketch7.addConstraint(Sketcher.Constraint("Vertical", 8))
sketch7.addConstraint(Sketcher.Constraint("Horizontal", 9))
sketch7.addConstraint(Sketcher.Constraint("Vertical", 10))
sketch7.addConstraint(Sketcher.Constraint("Horizontal", 11))
sketch7.addConstraint(Sketcher.Constraint("Vertical", 12))
sketch7.addConstraint(Sketcher.Constraint("Horizontal", 13))
sketch7.addConstraint(Sketcher.Constraint("Vertical", 14))
sketch7.addConstraint(Sketcher.Constraint("Horizontal", 15))
sketch7.addConstraint(Sketcher.Constraint("Vertical", 3, 2, 4, 2))
sketch7.addConstraint(Sketcher.Constraint("Vertical", 2, 2, 5, 2))
sketch7.addConstraint(Sketcher.Constraint("Vertical", 6, 2, 8, 2))
sketch7.addConstraint(Sketcher.Constraint("Vertical", 7, 2, 9, 2))
sketch7.addConstraint(Sketcher.Constraint("Vertical", 10, 2, 12, 2))
sketch7.addConstraint(Sketcher.Constraint("Vertical", 11, 2, 13, 2))
sketch7.addConstraint(Sketcher.Constraint("Equal", 2, 4))
sketch7.addConstraint(Sketcher.Constraint("Equal", 6, 8))
sketch7.addConstraint(Sketcher.Constraint("Equal", 10, 12))
sketch7.addConstraint(Sketcher.Constraint("DistanceY", 0, 2, 0, 1, Q("1 in")))
sketch7.addConstraint(Sketcher.Constraint("DistanceX", 1, 1, 1, 2, Q("22.5 in")))
sketch7.addConstraint(Sketcher.Constraint("DistanceY", -1, 1, 0, 2, Q("16 in")))
sketch7.addConstraint(Sketcher.Constraint("DistanceY", -1, 1, 4, 2, Q("30 in")))
sketch7.addConstraint(Sketcher.Constraint("DistanceY", -1, 1, 8, 2, Q("45 in")))
sketch7.addConstraint(Sketcher.Constraint("DistanceY", -1, 1, 12, 2, Q("58 in")))
sketch7.addConstraint(Sketcher.Constraint("DistanceX", 0, 2, -1, 1, Q("11.25 in")))
sketch7.setExpression("Constraints[41]", "Params.sketch7_height")
sketch7.setExpression("Constraints[42]", "Params.sketch7_width")
pad7 = doc.addObject("PartDesign::Pad", "Pad006")
body.addObject(pad7)
pad7.Profile = sketch7
pad7.setExpression("Length", "Params.pad7_length")

# Sketch on YZ plane
sketch8 = doc.addObject("Sketcher::SketchObject", "Sketch007")
body.addObject(sketch8)
sketch8.AttachmentSupport = (doc.YZ_Plane, [""])
sketch8.MapMode = "FlatFace"
sketch8.AttachmentOffset = App.Placement(V(0, 0, 22 * 25.4), App.Rotation())
sketch8.addGeometry(Part.LineSegment(V(286, 1499, 0), V(286, 1473, 0)), False)
sketch8.addGeometry(Part.LineSegment(V(286, 1473, 0), V(-286, 1473, 0)), False)
sketch8.addGeometry(Part.LineSegment(V(-286, 1473, 0), V(-286, 1499, 0)), False)
sketch8.addGeometry(Part.LineSegment(V(-286, 1499, 0), V(286, 1499, 0)), False)
sketch8.addGeometry(Part.LineSegment(V(286, 787, 0), V(286, 762, 0)), False)
sketch8.addGeometry(Part.LineSegment(V(286, 762, 0), V(-286, 762, 0)), False)
sketch8.addGeometry(Part.LineSegment(V(-286, 762, 0), V(-286, 787, 0)), False)
sketch8.addGeometry(Part.LineSegment(V(-286, 787, 0), V(286, 787, 0)), False)
sketch8.addGeometry(Part.LineSegment(V(286, 432, 0), V(286, 406, 0)), False)
sketch8.addGeometry(Part.LineSegment(V(286, 406, 0), V(-286, 406, 0)), False)
sketch8.addGeometry(Part.LineSegment(V(-286, 406, 0), V(-286, 432, 0)), False)
sketch8.addGeometry(Part.LineSegment(V(-286, 432, 0), V(286, 432, 0)), False)
sketch8.addGeometry(Part.LineSegment(V(286, 1143, 0), V(286, 1118, 0)), False)
sketch8.addGeometry(Part.LineSegment(V(286, 1118, 0), V(-286, 1118, 0)), False)
sketch8.addGeometry(Part.LineSegment(V(-286, 1118, 0), V(-286, 1143, 0)), False)
sketch8.addGeometry(Part.LineSegment(V(-286, 1143, 0), V(286, 1143, 0)), False)
sketch8.addConstraint(Sketcher.Constraint("Coincident", 0, 2, 1, 1))
sketch8.addConstraint(Sketcher.Constraint("Coincident", 1, 2, 2, 1))
sketch8.addConstraint(Sketcher.Constraint("Coincident", 2, 2, 3, 1))
sketch8.addConstraint(Sketcher.Constraint("Coincident", 3, 2, 0, 1))
sketch8.addConstraint(Sketcher.Constraint("Coincident", 4, 2, 5, 1))
sketch8.addConstraint(Sketcher.Constraint("Coincident", 5, 2, 6, 1))
sketch8.addConstraint(Sketcher.Constraint("Coincident", 6, 2, 7, 1))
sketch8.addConstraint(Sketcher.Constraint("Coincident", 7, 2, 4, 1))
sketch8.addConstraint(Sketcher.Constraint("Coincident", 8, 2, 9, 1))
sketch8.addConstraint(Sketcher.Constraint("Coincident", 9, 2, 10, 1))
sketch8.addConstraint(Sketcher.Constraint("Coincident", 10, 2, 11, 1))
sketch8.addConstraint(Sketcher.Constraint("Coincident", 11, 2, 8, 1))
sketch8.addConstraint(Sketcher.Constraint("Coincident", 12, 2, 13, 1))
sketch8.addConstraint(Sketcher.Constraint("Coincident", 13, 2, 14, 1))
sketch8.addConstraint(Sketcher.Constraint("Coincident", 14, 2, 15, 1))
sketch8.addConstraint(Sketcher.Constraint("Coincident", 15, 2, 12, 1))
sketch8.addConstraint(Sketcher.Constraint("Vertical", 0))
sketch8.addConstraint(Sketcher.Constraint("Horizontal", 1))
sketch8.addConstraint(Sketcher.Constraint("Vertical", 2))
sketch8.addConstraint(Sketcher.Constraint("Horizontal", 3))
sketch8.addConstraint(Sketcher.Constraint("Vertical", 4))
sketch8.addConstraint(Sketcher.Constraint("Horizontal", 5))
sketch8.addConstraint(Sketcher.Constraint("Vertical", 6))
sketch8.addConstraint(Sketcher.Constraint("Horizontal", 7))
sketch8.addConstraint(Sketcher.Constraint("Vertical", 8))
sketch8.addConstraint(Sketcher.Constraint("Horizontal", 9))
sketch8.addConstraint(Sketcher.Constraint("Vertical", 10))
sketch8.addConstraint(Sketcher.Constraint("Horizontal", 11))
sketch8.addConstraint(Sketcher.Constraint("Vertical", 12))
sketch8.addConstraint(Sketcher.Constraint("Horizontal", 13))
sketch8.addConstraint(Sketcher.Constraint("Vertical", 14))
sketch8.addConstraint(Sketcher.Constraint("Horizontal", 15))
sketch8.addConstraint(Sketcher.Constraint("Vertical", 3, 2, 4, 2))
sketch8.addConstraint(Sketcher.Constraint("Vertical", 2, 2, 5, 2))
sketch8.addConstraint(Sketcher.Constraint("Vertical", 7, 2, 8, 2))
sketch8.addConstraint(Sketcher.Constraint("Vertical", 6, 2, 9, 2))
sketch8.addConstraint(Sketcher.Constraint("Vertical", 11, 2, 12, 2))
sketch8.addConstraint(Sketcher.Constraint("Vertical", 10, 2, 13, 2))
sketch8.addConstraint(Sketcher.Constraint("Equal", 2, 4))
sketch8.addConstraint(Sketcher.Constraint("Equal", 6, 8))
sketch8.addConstraint(Sketcher.Constraint("Equal", 10, 12))
sketch8.addConstraint(Sketcher.Constraint("DistanceY", 0, 2, 0, 1, Q("1 in")))
sketch8.addConstraint(Sketcher.Constraint("DistanceX", 1, 2, 1, 1, Q("22.5 in")))
sketch8.addConstraint(Sketcher.Constraint("DistanceY", -1, 1, 0, 2, Q("58 in")))
sketch8.addConstraint(Sketcher.Constraint("DistanceY", -1, 1, 4, 2, Q("30 in")))
sketch8.addConstraint(Sketcher.Constraint("DistanceY", -1, 1, 8, 2, Q("16 in")))
sketch8.addConstraint(Sketcher.Constraint("DistanceY", -1, 1, 12, 2, Q("44 in")))
sketch8.addConstraint(Sketcher.Constraint("DistanceX", -1, 1, 0, 2, Q("11.25 in")))
sketch8.setExpression("Constraints[41]", "Params.sketch8_height")
sketch8.setExpression("Constraints[42]", "Params.sketch8_width")
pad8 = doc.addObject("PartDesign::Pad", "Pad007")
body.addObject(pad8)
pad8.Profile = sketch8
pad8.setExpression("Length", "Params.pad8_length")
pad8.Reversed = True

# Sketch on XZ plane
sketch9 = doc.addObject("Sketcher::SketchObject", "Sketch008")
body.addObject(sketch9)
sketch9.AttachmentSupport = (doc.XZ_Plane, [""])
sketch9.MapMode = "FlatFace"
sketch9.AttachmentOffset = App.Placement(V(0, 0, -11.25 * 25.4), App.Rotation())
sketch9.addGeometry(Part.LineSegment(V(-356, 432, 0), V(-356, 406, 0)), False)
sketch9.addGeometry(Part.LineSegment(V(-356, 406, 0), V(356, 406, 0)), False)
sketch9.addGeometry(Part.LineSegment(V(356, 406, 0), V(356, 432, 0)), False)
sketch9.addGeometry(Part.LineSegment(V(356, 432, 0), V(-356, 432, 0)), False)
sketch9.addGeometry(Part.LineSegment(V(-356, 1499, 0), V(-356, 1473, 0)), False)
sketch9.addGeometry(Part.LineSegment(V(-356, 1473, 0), V(356, 1473, 0)), False)
sketch9.addGeometry(Part.LineSegment(V(356, 1473, 0), V(356, 1499, 0)), False)
sketch9.addGeometry(Part.LineSegment(V(356, 1499, 0), V(-356, 1499, 0)), False)
sketch9.addGeometry(Part.LineSegment(V(-356, 787, 0), V(-356, 762, 0)), False)
sketch9.addGeometry(Part.LineSegment(V(-356, 762, 0), V(356, 762, 0)), False)
sketch9.addGeometry(Part.LineSegment(V(356, 762, 0), V(356, 787, 0)), False)
sketch9.addGeometry(Part.LineSegment(V(356, 787, 0), V(-356, 787, 0)), False)
sketch9.addGeometry(Part.LineSegment(V(-356, 1143, 0), V(-356, 1118, 0)), False)
sketch9.addGeometry(Part.LineSegment(V(-356, 1118, 0), V(356, 1118, 0)), False)
sketch9.addGeometry(Part.LineSegment(V(356, 1118, 0), V(356, 1143, 0)), False)
sketch9.addGeometry(Part.LineSegment(V(356, 1143, 0), V(-356, 1143, 0)), False)
sketch9.addConstraint(Sketcher.Constraint("Coincident", 0, 2, 1, 1))
sketch9.addConstraint(Sketcher.Constraint("Coincident", 1, 2, 2, 1))
sketch9.addConstraint(Sketcher.Constraint("Coincident", 2, 2, 3, 1))
sketch9.addConstraint(Sketcher.Constraint("Coincident", 3, 2, 0, 1))
sketch9.addConstraint(Sketcher.Constraint("Coincident", 4, 2, 5, 1))
sketch9.addConstraint(Sketcher.Constraint("Coincident", 5, 2, 6, 1))
sketch9.addConstraint(Sketcher.Constraint("Coincident", 6, 2, 7, 1))
sketch9.addConstraint(Sketcher.Constraint("Coincident", 7, 2, 4, 1))
sketch9.addConstraint(Sketcher.Constraint("Coincident", 8, 2, 9, 1))
sketch9.addConstraint(Sketcher.Constraint("Coincident", 9, 2, 10, 1))
sketch9.addConstraint(Sketcher.Constraint("Coincident", 10, 2, 11, 1))
sketch9.addConstraint(Sketcher.Constraint("Coincident", 11, 2, 8, 1))
sketch9.addConstraint(Sketcher.Constraint("Coincident", 12, 2, 13, 1))
sketch9.addConstraint(Sketcher.Constraint("Coincident", 13, 2, 14, 1))
sketch9.addConstraint(Sketcher.Constraint("Coincident", 14, 2, 15, 1))
sketch9.addConstraint(Sketcher.Constraint("Coincident", 15, 2, 12, 1))
sketch9.addConstraint(Sketcher.Constraint("Vertical", 0))
sketch9.addConstraint(Sketcher.Constraint("Horizontal", 1))
sketch9.addConstraint(Sketcher.Constraint("Vertical", 2))
sketch9.addConstraint(Sketcher.Constraint("Horizontal", 3))
sketch9.addConstraint(Sketcher.Constraint("Vertical", 4))
sketch9.addConstraint(Sketcher.Constraint("Horizontal", 5))
sketch9.addConstraint(Sketcher.Constraint("Vertical", 6))
sketch9.addConstraint(Sketcher.Constraint("Horizontal", 7))
sketch9.addConstraint(Sketcher.Constraint("Vertical", 8))
sketch9.addConstraint(Sketcher.Constraint("Horizontal", 9))
sketch9.addConstraint(Sketcher.Constraint("Vertical", 10))
sketch9.addConstraint(Sketcher.Constraint("Horizontal", 11))
sketch9.addConstraint(Sketcher.Constraint("Vertical", 12))
sketch9.addConstraint(Sketcher.Constraint("Horizontal", 13))
sketch9.addConstraint(Sketcher.Constraint("Vertical", 14))
sketch9.addConstraint(Sketcher.Constraint("Horizontal", 15))
sketch9.addConstraint(Sketcher.Constraint("Vertical", 3, 2, 4, 2))
sketch9.addConstraint(Sketcher.Constraint("Vertical", 2, 2, 5, 2))
sketch9.addConstraint(Sketcher.Constraint("Vertical", 7, 2, 8, 2))
sketch9.addConstraint(Sketcher.Constraint("Vertical", 6, 2, 9, 2))
sketch9.addConstraint(Sketcher.Constraint("Vertical", 11, 2, 12, 2))
sketch9.addConstraint(Sketcher.Constraint("Vertical", 10, 2, 13, 2))
sketch9.addConstraint(Sketcher.Constraint("Equal", 2, 4))
sketch9.addConstraint(Sketcher.Constraint("Equal", 6, 8))
sketch9.addConstraint(Sketcher.Constraint("Equal", 10, 12))
sketch9.addConstraint(Sketcher.Constraint("DistanceX", 1, 1, 1, 2, Q("28 in")))
sketch9.addConstraint(Sketcher.Constraint("DistanceY", 0, 2, 0, 1, Q("1 in")))
sketch9.addConstraint(Sketcher.Constraint("DistanceX", 0, 2, -1, 1, Q("14 in")))
sketch9.addConstraint(Sketcher.Constraint("DistanceY", -1, 1, 0, 2, Q("16 in")))
sketch9.addConstraint(Sketcher.Constraint("DistanceY", -1, 1, 4, 2, Q("58 in")))
sketch9.addConstraint(Sketcher.Constraint("DistanceY", -1, 1, 8, 2, Q("30 in")))
sketch9.addConstraint(Sketcher.Constraint("DistanceY", -1, 1, 12, 2, Q("44 in")))
sketch9.setExpression("Constraints[41]", "Params.sketch9_width")
sketch9.setExpression("Constraints[42]", "Params.sketch9_height")
pad9 = doc.addObject("PartDesign::Pad", "Pad008")
body.addObject(pad9)
pad9.Profile = sketch9
pad9.setExpression("Length", "Params.pad9_length")

doc.recompute()
